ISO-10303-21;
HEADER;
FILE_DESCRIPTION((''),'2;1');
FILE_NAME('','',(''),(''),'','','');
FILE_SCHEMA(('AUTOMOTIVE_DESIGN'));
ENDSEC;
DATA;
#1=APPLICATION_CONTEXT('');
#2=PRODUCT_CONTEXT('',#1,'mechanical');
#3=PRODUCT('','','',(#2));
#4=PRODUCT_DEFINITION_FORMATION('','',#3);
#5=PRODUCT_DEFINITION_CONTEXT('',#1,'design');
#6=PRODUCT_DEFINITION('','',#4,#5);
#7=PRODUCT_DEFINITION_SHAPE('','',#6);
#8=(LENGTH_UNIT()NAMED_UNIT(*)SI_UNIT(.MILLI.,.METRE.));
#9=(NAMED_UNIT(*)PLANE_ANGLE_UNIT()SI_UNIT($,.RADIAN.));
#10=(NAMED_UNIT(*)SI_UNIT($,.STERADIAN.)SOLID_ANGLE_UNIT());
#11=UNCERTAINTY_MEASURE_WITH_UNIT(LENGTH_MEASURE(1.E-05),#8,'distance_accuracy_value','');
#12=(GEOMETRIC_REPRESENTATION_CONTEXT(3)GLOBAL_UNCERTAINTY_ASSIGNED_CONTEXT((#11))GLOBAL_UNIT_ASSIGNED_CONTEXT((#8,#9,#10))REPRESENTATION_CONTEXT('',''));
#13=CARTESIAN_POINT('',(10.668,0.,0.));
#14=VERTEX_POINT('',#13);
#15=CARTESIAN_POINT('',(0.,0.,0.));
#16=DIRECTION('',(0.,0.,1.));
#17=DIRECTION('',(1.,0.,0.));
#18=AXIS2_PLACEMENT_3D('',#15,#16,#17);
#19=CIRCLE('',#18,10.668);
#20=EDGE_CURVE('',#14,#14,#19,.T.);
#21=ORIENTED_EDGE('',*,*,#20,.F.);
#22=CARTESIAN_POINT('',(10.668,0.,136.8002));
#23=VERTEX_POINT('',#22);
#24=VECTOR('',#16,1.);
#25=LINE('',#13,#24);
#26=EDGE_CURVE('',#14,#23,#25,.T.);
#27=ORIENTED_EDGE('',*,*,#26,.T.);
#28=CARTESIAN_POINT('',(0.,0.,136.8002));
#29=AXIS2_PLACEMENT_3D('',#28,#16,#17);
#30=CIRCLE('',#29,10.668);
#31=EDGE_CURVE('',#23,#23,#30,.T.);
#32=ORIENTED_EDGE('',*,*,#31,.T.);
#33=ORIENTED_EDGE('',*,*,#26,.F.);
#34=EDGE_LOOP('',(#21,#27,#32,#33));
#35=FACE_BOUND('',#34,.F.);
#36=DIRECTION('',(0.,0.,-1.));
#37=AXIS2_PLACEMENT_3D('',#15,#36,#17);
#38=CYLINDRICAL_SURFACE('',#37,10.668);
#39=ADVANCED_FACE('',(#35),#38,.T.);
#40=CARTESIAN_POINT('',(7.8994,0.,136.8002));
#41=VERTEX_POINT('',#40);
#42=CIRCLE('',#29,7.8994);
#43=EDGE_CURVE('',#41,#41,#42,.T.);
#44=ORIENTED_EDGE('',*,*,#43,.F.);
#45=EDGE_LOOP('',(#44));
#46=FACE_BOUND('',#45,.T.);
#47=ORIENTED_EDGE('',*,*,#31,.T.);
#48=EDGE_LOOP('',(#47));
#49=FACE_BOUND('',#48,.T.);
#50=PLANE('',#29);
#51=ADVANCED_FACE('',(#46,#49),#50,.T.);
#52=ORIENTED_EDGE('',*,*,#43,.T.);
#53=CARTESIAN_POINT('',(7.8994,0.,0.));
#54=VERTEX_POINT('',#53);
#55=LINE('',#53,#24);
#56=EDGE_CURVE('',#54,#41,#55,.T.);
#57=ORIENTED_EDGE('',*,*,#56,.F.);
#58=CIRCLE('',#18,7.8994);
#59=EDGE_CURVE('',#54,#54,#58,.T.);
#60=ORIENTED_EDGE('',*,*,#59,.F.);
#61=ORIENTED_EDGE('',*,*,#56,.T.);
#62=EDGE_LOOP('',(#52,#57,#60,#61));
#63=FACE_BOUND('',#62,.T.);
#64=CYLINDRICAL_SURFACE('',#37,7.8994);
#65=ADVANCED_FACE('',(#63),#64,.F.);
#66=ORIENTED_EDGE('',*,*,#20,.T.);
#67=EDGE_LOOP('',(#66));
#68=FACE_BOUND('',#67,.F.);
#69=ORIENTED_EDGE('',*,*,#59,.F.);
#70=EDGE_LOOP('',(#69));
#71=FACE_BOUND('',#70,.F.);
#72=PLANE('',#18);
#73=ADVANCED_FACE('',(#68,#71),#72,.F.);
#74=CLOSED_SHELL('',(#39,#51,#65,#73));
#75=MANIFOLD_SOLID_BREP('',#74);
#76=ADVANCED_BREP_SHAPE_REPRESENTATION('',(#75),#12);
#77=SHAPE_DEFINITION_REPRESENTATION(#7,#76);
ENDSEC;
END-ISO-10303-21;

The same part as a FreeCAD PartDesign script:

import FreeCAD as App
import Part
import Sketcher
Q = App.Units.Quantity

doc = App.newDocument("Part")
body = doc.addObject("PartDesign::Body", "Body")

sketch1 = doc.addObject("Sketcher::SketchObject", "Sketch")
body.addObject(sketch1)
sketch1.AttachmentSupport = (doc.XY_Plane, [""])
sketch1.MapMode = "FlatFace"
sketch1.addGeometry([
    Part.Circle(App.Vector(0, 0, 0), App.Vector(0, 0, 1), 11),
    Part.Circle(App.Vector(0, 0, 0), App.Vector(0, 0, 1), 8),
], False)
sketch1.addConstraint([
    Sketcher.Constraint("Coincident", 0, 3, -1, 1),
    Sketcher.Constraint("Coincident", 1, 3, -1, 1),
    Sketcher.Constraint("Diameter", 0, Q("0.84 in")),
    Sketcher.Constraint("Diameter", 1, Q("0.622 in")),
])
pad1 = doc.addObject("PartDesign::Pad", "Pad")
body.addObject(pad1)
pad1.Profile = sketch1
pad1.Length = 136.8002

doc.recompute()
